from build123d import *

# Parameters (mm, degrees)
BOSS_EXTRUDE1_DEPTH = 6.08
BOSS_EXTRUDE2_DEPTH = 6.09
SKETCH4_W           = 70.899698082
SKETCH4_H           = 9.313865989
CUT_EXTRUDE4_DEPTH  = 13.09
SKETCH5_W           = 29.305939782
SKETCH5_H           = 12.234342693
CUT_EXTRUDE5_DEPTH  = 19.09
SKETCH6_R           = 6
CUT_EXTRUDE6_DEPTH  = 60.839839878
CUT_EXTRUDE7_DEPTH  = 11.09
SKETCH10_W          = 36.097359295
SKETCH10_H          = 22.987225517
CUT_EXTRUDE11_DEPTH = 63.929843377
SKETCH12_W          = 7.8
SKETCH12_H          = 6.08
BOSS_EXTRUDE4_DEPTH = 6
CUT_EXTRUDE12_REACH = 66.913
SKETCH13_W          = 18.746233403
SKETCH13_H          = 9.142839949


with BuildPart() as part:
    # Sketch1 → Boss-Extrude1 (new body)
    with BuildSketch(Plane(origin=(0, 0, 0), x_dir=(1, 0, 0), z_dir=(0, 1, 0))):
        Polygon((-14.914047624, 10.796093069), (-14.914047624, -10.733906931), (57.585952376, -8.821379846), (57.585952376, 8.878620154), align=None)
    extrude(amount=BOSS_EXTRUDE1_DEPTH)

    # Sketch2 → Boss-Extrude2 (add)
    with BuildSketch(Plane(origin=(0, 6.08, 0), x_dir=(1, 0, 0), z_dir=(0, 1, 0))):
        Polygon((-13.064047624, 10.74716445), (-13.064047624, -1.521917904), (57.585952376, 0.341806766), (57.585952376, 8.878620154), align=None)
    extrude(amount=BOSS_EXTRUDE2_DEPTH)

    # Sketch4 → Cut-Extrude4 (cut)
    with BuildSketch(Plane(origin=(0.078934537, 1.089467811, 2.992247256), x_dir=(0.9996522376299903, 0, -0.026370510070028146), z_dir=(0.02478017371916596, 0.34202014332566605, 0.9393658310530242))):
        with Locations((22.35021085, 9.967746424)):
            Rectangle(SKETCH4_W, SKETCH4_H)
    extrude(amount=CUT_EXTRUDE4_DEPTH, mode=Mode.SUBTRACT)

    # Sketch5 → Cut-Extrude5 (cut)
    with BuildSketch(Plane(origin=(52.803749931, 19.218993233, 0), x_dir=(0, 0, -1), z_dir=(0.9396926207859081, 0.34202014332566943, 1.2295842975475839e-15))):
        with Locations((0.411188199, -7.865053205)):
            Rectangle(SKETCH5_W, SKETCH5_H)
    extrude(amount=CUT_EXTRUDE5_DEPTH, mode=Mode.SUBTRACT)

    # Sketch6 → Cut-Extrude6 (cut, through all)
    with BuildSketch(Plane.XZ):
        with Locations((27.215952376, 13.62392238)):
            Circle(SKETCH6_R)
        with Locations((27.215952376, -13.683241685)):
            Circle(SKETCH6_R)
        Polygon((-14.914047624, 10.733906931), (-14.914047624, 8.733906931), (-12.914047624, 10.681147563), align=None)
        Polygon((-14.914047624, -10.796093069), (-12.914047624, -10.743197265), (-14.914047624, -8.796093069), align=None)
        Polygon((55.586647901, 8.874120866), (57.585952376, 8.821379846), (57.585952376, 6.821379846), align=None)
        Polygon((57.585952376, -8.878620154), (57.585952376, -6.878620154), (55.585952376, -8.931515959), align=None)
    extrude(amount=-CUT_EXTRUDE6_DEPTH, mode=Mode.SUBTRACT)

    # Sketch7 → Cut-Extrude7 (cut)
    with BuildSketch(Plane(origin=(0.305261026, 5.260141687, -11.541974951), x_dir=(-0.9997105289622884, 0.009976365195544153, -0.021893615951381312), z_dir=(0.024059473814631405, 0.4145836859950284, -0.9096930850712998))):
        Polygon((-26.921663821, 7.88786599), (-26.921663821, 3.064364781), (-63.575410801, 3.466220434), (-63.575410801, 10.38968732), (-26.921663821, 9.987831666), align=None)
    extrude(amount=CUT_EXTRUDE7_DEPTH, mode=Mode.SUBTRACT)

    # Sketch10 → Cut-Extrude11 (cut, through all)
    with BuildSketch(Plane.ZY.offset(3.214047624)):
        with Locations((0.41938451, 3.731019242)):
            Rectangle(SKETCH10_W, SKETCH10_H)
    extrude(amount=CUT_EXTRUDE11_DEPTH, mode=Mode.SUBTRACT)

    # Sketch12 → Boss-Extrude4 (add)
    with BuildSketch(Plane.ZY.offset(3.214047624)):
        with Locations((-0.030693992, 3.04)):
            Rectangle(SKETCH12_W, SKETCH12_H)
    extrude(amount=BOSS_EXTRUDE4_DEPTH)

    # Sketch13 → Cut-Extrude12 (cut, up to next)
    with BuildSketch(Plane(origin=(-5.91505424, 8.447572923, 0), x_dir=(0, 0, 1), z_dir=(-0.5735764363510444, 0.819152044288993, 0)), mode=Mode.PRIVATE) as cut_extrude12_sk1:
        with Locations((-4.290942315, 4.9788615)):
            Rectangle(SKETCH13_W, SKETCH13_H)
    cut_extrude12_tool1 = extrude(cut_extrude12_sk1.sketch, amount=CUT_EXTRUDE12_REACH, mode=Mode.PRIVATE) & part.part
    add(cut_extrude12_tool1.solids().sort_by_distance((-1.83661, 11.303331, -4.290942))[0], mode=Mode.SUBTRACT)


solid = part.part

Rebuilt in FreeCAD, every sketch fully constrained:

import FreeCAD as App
import Part
import Sketcher
Q = App.Units.Quantity

doc = App.newDocument("Part")
body = doc.addObject("PartDesign::Body", "Body")

sketch1 = doc.addObject("Sketcher::SketchObject", "Sketch")
body.addObject(sketch1)
sketch1.AttachmentSupport = (doc.XZ_Plane, [""])
sketch1.MapMode = "FlatFace"
sketch1.addGeometry([
    Part.LineSegment(App.Vector(-15, -11, 0), App.Vector(-15, 11, 0)),
    Part.LineSegment(App.Vector(-15, 11, 0), App.Vector(58, 9, 0)),
    Part.LineSegment(App.Vector(58, 9, 0), App.Vector(58, -9, 0)),
    Part.LineSegment(App.Vector(58, -9, 0), App.Vector(-15, -11, 0)),
], False)
sketch1.addConstraint([
    Sketcher.Constraint("Coincident", 0, 2, 1, 1),
    Sketcher.Constraint("Coincident", 1, 2, 2, 1),
    Sketcher.Constraint("Coincident", 2, 2, 3, 1),
    Sketcher.Constraint("Coincident", 3, 2, 0, 1),
    Sketcher.Constraint("Vertical", 0),
    Sketcher.Constraint("Vertical", 2),
    Sketcher.Constraint("DistanceY", 2, 2, 2, 1, Q("17.7 mm")),
    Sketcher.Constraint("DistanceY", 0, 1, 0, 2, Q("21.53 mm")),
    Sketcher.Constraint("DistanceX", 0, 2, 1, 2, Q("72.5 mm")),
    Sketcher.Constraint("Distance", 1, Q("72.525222 mm")),
    Sketcher.Constraint("DistanceY", -1, 1, 1, 2, Q("8.82138 mm")),
    Sketcher.Constraint("DistanceX", 0, 2, -1, 1, Q("14.914048 mm")),
])
pad1 = doc.addObject("PartDesign::Pad", "Pad")
body.addObject(pad1)
pad1.Profile = sketch1
pad1.Length = 6.08
pad1.Reversed = True

sketch2 = doc.addObject("Sketcher::SketchObject", "Sketch001")
body.addObject(sketch2)
sketch2.AttachmentSupport = (doc.XZ_Plane, [""])
sketch2.MapMode = "FlatFace"
sketch2.AttachmentOffset = App.Placement(App.Vector(0, 0, -6.08), App.Rotation())
sketch2.addGeometry([
    Part.LineSegment(App.Vector(-13, -11, 0), App.Vector(-13, 2, 0)),
    Part.LineSegment(App.Vector(-13, 2, 0), App.Vector(58, 0, 0)),
    Part.LineSegment(App.Vector(58, 0, 0), App.Vector(58, -9, 0)),
    Part.LineSegment(App.Vector(58, -9, 0), App.Vector(-13, -11, 0)),
], False)
sketch2.addConstraint([
    Sketcher.Constraint("Coincident", 0, 2, 1, 1),
    Sketcher.Constraint("Coincident", 1, 2, 2, 1),
    Sketcher.Constraint("Coincident", 2, 2, 3, 1),
    Sketcher.Constraint("Coincident", 3, 2, 0, 1),
    Sketcher.Constraint("Vertical", 0),
    Sketcher.Constraint("Vertical", 2),
    Sketcher.Constraint("DistanceX", 0, 2, 1, 2, Q("70.65 mm")),
    Sketcher.Constraint("DistanceY", 0, 1, 0, 2, Q("12.269082 mm")),
    Sketcher.Constraint("DistanceY", 2, 2, 2, 1, Q("8.536813 mm")),
    Sketcher.Constraint("DistanceY", 2, 2, -1, 1, Q("8.87862 mm")),
    Sketcher.Constraint("DistanceY", 2, 2, 0, 2, Q("10.400538 mm")),
    Sketcher.Constraint("DistanceX", 0, 2, -1, 1, Q("13.064048 mm")),
])
pad2 = doc.addObject("PartDesign::Pad", "Pad001")
body.addObject(pad2)
pad2.Profile = sketch2
pad2.Length = 6.09
pad2.Reversed = True

sketch3 = doc.addObject("Sketcher::SketchObject", "Sketch002")
body.addObject(sketch3)
sketch3.Placement = App.Placement(App.Vector(0.078935, 1.089468, 2.992247), App.Rotation(App.Vector(0.999652238, 0, -0.02637051), App.Vector(-0.009019246, 0.939692621, -0.341901201), App.Vector(0.024780174, 0.342020143, 0.939365831), "ZXY"))
sketch3.addGeometry([
    Part.LineSegment(App.Vector(-13, 15, 0), App.Vector(-13, 5, 0)),
    Part.LineSegment(App.Vector(-13, 5, 0), App.Vector(58, 5, 0)),
    Part.LineSegment(App.Vector(58, 5, 0), App.Vector(58, 15, 0)),
    Part.LineSegment(App.Vector(58, 15, 0), App.Vector(-13, 15, 0)),
], False)
sketch3.addConstraint([
    Sketcher.Constraint("Coincident", 0, 2, 1, 1),
    Sketcher.Constraint("Coincident", 1, 2, 2, 1),
    Sketcher.Constraint("Coincident", 2, 2, 3, 1),
    Sketcher.Constraint("Coincident", 3, 2, 0, 1),
    Sketcher.Constraint("Vertical", 0),
    Sketcher.Constraint("Horizontal", 1),
    Sketcher.Constraint("Vertical", 2),
    Sketcher.Constraint("Horizontal", 3),
    Sketcher.Constraint("DistanceX", 1, 1, 1, 2, Q("70.899698 mm")),
    Sketcher.Constraint("DistanceY", 0, 2, 0, 1, Q("9.313866 mm")),
    Sketcher.Constraint("DistanceX", 0, 2, -1, 1, Q("13.099638 mm")),
    Sketcher.Constraint("DistanceY", -1, 1, 2, 2, Q("14.624679 mm")),
])
pocket1 = doc.addObject("PartDesign::Pocket", "Pocket")
body.addObject(pocket1)
pocket1.Profile = sketch3
pocket1.Length = 13.09
pocket1.Reversed = True

sketch4 = doc.addObject("Sketcher::SketchObject", "Sketch003")
body.addObject(sketch4)
sketch4.Placement = App.Placement(App.Vector(52.80375, 19.218993, 0), App.Rotation(App.Vector(0, 0, -1), App.Vector(-0.342020143, 0.939692621, 0), App.Vector(0.939692621, 0.342020143, 0), "ZXY"))
sketch4.addGeometry([
    Part.LineSegment(App.Vector(-14, -2, 0), App.Vector(-14, -14, 0)),
    Part.LineSegment(App.Vector(-14, -14, 0), App.Vector(15, -14, 0)),
    Part.LineSegment(App.Vector(15, -14, 0), App.Vector(15, -2, 0)),
    Part.LineSegment(App.Vector(15, -2, 0), App.Vector(-14, -2, 0)),
], False)
sketch4.addConstraint([
    Sketcher.Constraint("Coincident", 0, 2, 1, 1),
    Sketcher.Constraint("Coincident", 1, 2, 2, 1),
    Sketcher.Constraint("Coincident", 2, 2, 3, 1),
    Sketcher.Constraint("Coincident", 3, 2, 0, 1),
    Sketcher.Constraint("Vertical", 0),
    Sketcher.Constraint("Horizontal", 1),
    Sketcher.Constraint("Vertical", 2),
    Sketcher.Constraint("Horizontal", 3),
    Sketcher.Constraint("DistanceX", 1, 1, 1, 2, Q("29.30594 mm")),
    Sketcher.Constraint("DistanceY", 0, 2, 0, 1, Q("12.234343 mm")),
    Sketcher.Constraint("DistanceX", 0, 2, -1, 1, Q("14.241782 mm")),
    Sketcher.Constraint("DistanceY", 2, 2, -1, 1, Q("1.747882 mm")),
])
pocket2 = doc.addObject("PartDesign::Pocket", "Pocket001")
body.addObject(pocket2)
pocket2.Profile = sketch4
pocket2.Length = 19.09
pocket2.Reversed = True

sketch5 = doc.addObject("Sketcher::SketchObject", "Sketch004")
body.addObject(sketch5)
sketch5.AttachmentSupport = (doc.XZ_Plane, [""])
sketch5.MapMode = "FlatFace"
sketch5.addGeometry([
    Part.Circle(App.Vector(27.2, 13.6, 0), App.Vector(0, 0, 1), 6),
    Part.Circle(App.Vector(27.2, -13.7, 0), App.Vector(0, 0, 1), 6),
    Part.LineSegment(App.Vector(-14.9, 10.7, 0), App.Vector(-14.9, 8.7, 0)),
    Part.LineSegment(App.Vector(-14.9, 8.7, 0), App.Vector(-12.9, 10.7, 0)),
    Part.LineSegment(App.Vector(-12.9, 10.7, 0), App.Vector(-14.9, 10.7, 0)),
    Part.LineSegment(App.Vector(-14.9, -10.8, 0), App.Vector(-12.9, -10.7, 0)),
    Part.LineSegment(App.Vector(-12.9, -10.7, 0), App.Vector(-14.9, -8.8, 0)),
    Part.LineSegment(App.Vector(-14.9, -8.8, 0), App.Vector(-14.9, -10.8, 0)),
    Part.LineSegment(App.Vector(57.6, 8.8, 0), App.Vector(55.6, 8.9, 0)),
    Part.LineSegment(App.Vector(55.6, 8.9, 0), App.Vector(57.6, 6.8, 0)),
    Part.LineSegment(App.Vector(57.6, 6.8, 0), App.Vector(57.6, 8.8, 0)),
    Part.LineSegment(App.Vector(57.6, -8.9, 0), App.Vector(57.6, -6.9, 0)),
    Part.LineSegment(App.Vector(57.6, -6.9, 0), App.Vector(55.6, -8.9, 0)),
    Part.LineSegment(App.Vector(55.6, -8.9, 0), App.Vector(57.6, -8.9, 0)),
], False)
sketch5.addConstraint([
    Sketcher.Constraint("Coincident", 2, 2, 3, 1),
    Sketcher.Constraint("Coincident", 3, 2, 4, 1),
    Sketcher.Constraint("Coincident", 4, 2, 2, 1),
    Sketcher.Constraint("Coincident", 5, 2, 6, 1),
    Sketcher.Constraint("Coincident", 6, 2, 7, 1),
    Sketcher.Constraint("Coincident", 7, 2, 5, 1),
    Sketcher.Constraint("Coincident", 8, 2, 9, 1),
    Sketcher.Constraint("Coincident", 9, 2, 10, 1),
    Sketcher.Constraint("Coincident", 10, 2, 8, 1),
    Sketcher.Constraint("Coincident", 11, 2, 12, 1),
    Sketcher.Constraint("Coincident", 12, 2, 13, 1),
    Sketcher.Constraint("Coincident", 13, 2, 11, 1),
    Sketcher.Constraint("Vertical", 2),
    Sketcher.Constraint("Vertical", 7),
    Sketcher.Constraint("Vertical", 10),
    Sketcher.Constraint("Vertical", 11),
    Sketcher.Constraint("Equal", 0, 1),
    Sketcher.Constraint("Parallel", 4, 8),
    Sketcher.Constraint("Parallel", 5, 13),
    Sketcher.Constraint("Vertical", 0, 3, 1, 3),
    Sketcher.Constraint("Vertical", 3, 2, 5, 2),
    Sketcher.Constraint("Vertical", 4, 2, 6, 2),
    Sketcher.Constraint("Vertical", 10, 2, 11, 2),
    Sketcher.Constraint("Equal", 2, 7),
    Sketcher.Constraint("Equal", 7, 10),
    Sketcher.Constraint("Equal", 10, 11),
    Sketcher.Constraint("Equal", 5, 13),
    Sketcher.Constraint("Diameter", 0, Q("12 mm")),
    Sketcher.Constraint("DistanceY", 2, 2, 2, 1, Q("2 mm")),
    Sketcher.Constraint("Distance", 8, Q("2 mm")),
    Sketcher.Constraint("DistanceX", 2, 2, 3, 2, Q("2 mm")),
    Sketcher.Constraint("DistanceX", 3, 2, 9, 2, Q("70.5 mm")),
    Sketcher.Constraint("DistanceY", 11, 2, 9, 2, Q("13.7 mm")),
    Sketcher.Constraint("DistanceX", 2, 2, 0, 3, Q("42.13 mm")),
    Sketcher.Constraint("DistanceY", 6, 2, 2, 2, Q("17.53 mm")),
    Sketcher.Constraint("Distance", 5, Q("2.000699 mm")),
    Sketcher.Constraint("DistanceY", 8, 2, 0, 3, Q("4.749802 mm")),
    Sketcher.Constraint("Distance", 3, Q("2.79137 mm")),
    Sketcher.Constraint("DistanceY", 1, 3, -1, 1, Q("13.683242 mm")),
    Sketcher.Constraint("DistanceY", -1, 1, 8, 2, Q("8.874121 mm")),
    Sketcher.Constraint("DistanceY", 1, 3, 2, 2, Q("22.417149 mm")),
    Sketcher.Constraint("DistanceX", -1, 1, 0, 3, Q("27.215952 mm")),
])
pocket3 = doc.addObject("PartDesign::Pocket", "Pocket002")
body.addObject(pocket3)
pocket3.Profile = sketch5
pocket3.Type = "ThroughAll"

sketch6 = doc.addObject("Sketcher::SketchObject", "Sketch005")
body.addObject(sketch6)
sketch6.Placement = App.Placement(App.Vector(0.305261, 5.260142, -11.541975), App.Rotation(App.Vector(-0.999710529, 0.009976365, -0.021893616), App.Vector(-0.000001306, 0.909956504, 0.414703702), App.Vector(0.024059474, 0.414583686, -0.909693085), "ZXY"))
sketch6.addGeometry([
    Part.LineSegment(App.Vector(-27, 3, 0), App.Vector(-27, 10, 0)),
    Part.LineSegment(App.Vector(-27, 10, 0), App.Vector(-64, 10, 0)),
    Part.LineSegment(App.Vector(-64, 10, 0), App.Vector(-64, 3, 0)),
    Part.LineSegment(App.Vector(-64, 3, 0), App.Vector(-27, 3, 0)),
], False)
sketch6.addConstraint([
    Sketcher.Constraint("Coincident", 0, 2, 1, 1),
    Sketcher.Constraint("Coincident", 1, 2, 2, 1),
    Sketcher.Constraint("Coincident", 2, 2, 3, 1),
    Sketcher.Constraint("Coincident", 3, 2, 0, 1),
    Sketcher.Constraint("Vertical", 0),
    Sketcher.Constraint("Vertical", 2),
    Sketcher.Constraint("Parallel", 1, 3),
    Sketcher.Constraint("Distance", 1, Q("36.65595 mm")),
    Sketcher.Constraint("DistanceY", 0, 1, 0, 2, Q("6.923467 mm")),
    Sketcher.Constraint("DistanceY", -1, 1, 0, 2, Q("9.987832 mm")),
    Sketcher.Constraint("DistanceX", 1, 2, -1, 1, Q("63.575411 mm")),
    Sketcher.Constraint("DistanceY", -1, 1, 2, 2, Q("3.46622 mm")),
])
pocket4 = doc.addObject("PartDesign::Pocket", "Pocket003")
body.addObject(pocket4)
pocket4.Profile = sketch6
pocket4.Length = 11.09
pocket4.Reversed = True

sketch7 = doc.addObject("Sketcher::SketchObject", "Sketch006")
body.addObject(sketch7)
sketch7.AttachmentSupport = (doc.YZ_Plane, [""])
sketch7.MapMode = "FlatFace"
sketch7.AttachmentOffset = App.Placement(App.Vector(0, 0, -3.214048), App.Rotation())
sketch7.addGeometry([
    Part.LineSegment(App.Vector(15, -18, 0), App.Vector(-8, -18, 0)),
    Part.LineSegment(App.Vector(-8, -18, 0), App.Vector(-8, 18, 0)),
    Part.LineSegment(App.Vector(-8, 18, 0), App.Vector(15, 18, 0)),
    Part.LineSegment(App.Vector(15, 18, 0), App.Vector(15, -18, 0)),
], False)
sketch7.addConstraint([
    Sketcher.Constraint("Coincident", 0, 2, 1, 1),
    Sketcher.Constraint("Coincident", 1, 2, 2, 1),
    Sketcher.Constraint("Coincident", 2, 2, 3, 1),
    Sketcher.Constraint("Coincident", 3, 2, 0, 1),
    Sketcher.Constraint("Horizontal", 0),
    Sketcher.Constraint("Vertical", 1),
    Sketcher.Constraint("Horizontal", 2),
    Sketcher.Constraint("Vertical", 3),
    Sketcher.Constraint("DistanceY", 1, 1, 1, 2, Q("36.097359 mm")),
    Sketcher.Constraint("DistanceX", 0, 2, 0, 1, Q("22.987226 mm")),
    Sketcher.Constraint("DistanceX", 0, 2, -1, 1, Q("7.762594 mm")),
    Sketcher.Constraint("DistanceY", 0, 2, -1, 1, Q("17.629295 mm")),
])
pocket5 = doc.addObject("PartDesign::Pocket", "Pocket004")
body.addObject(pocket5)
pocket5.Profile = sketch7
pocket5.Type = "ThroughAll"

sketch8 = doc.addObject("Sketcher::SketchObject", "Sketch007")
body.addObject(sketch8)
sketch8.AttachmentSupport = (doc.YZ_Plane, [""])
sketch8.MapMode = "FlatFace"
sketch8.AttachmentOffset = App.Placement(App.Vector(0, 0, -3.214048), App.Rotation())
sketch8.addGeometry([
    Part.LineSegment(App.Vector(6, -4, 0), App.Vector(0, -4, 0)),
    Part.LineSegment(App.Vector(0, -4, 0), App.Vector(0, 4, 0)),
    Part.LineSegment(App.Vector(0, 4, 0), App.Vector(6, 4, 0)),
    Part.LineSegment(App.Vector(6, 4, 0), App.Vector(6, -4, 0)),
], False)
sketch8.addConstraint([
    Sketcher.Constraint("Coincident", 0, 2, 1, 1),
    Sketcher.Constraint("Coincident", 1, 2, 2, 1),
    Sketcher.Constraint("Coincident", 2, 2, 3, 1),
    Sketcher.Constraint("Coincident", 3, 2, 0, 1),
    Sketcher.Constraint("Horizontal", 0),
    Sketcher.Constraint("Vertical", 1),
    Sketcher.Constraint("Horizontal", 2),
    Sketcher.Constraint("Vertical", 3),
    Sketcher.Constraint("PointOnObject", 0, 2, -2),
    Sketcher.Constraint("DistanceY", 1, 1, 1, 2, Q("7.8 mm")),
    Sketcher.Constraint("DistanceX", 0, 2, 0, 1, Q("6.08 mm")),
    Sketcher.Constraint("DistanceY", 0, 2, -1, 1, Q("3.930694 mm")),
])
pad3 = doc.addObject("PartDesign::Pad", "Pad002")
body.addObject(pad3)
pad3.Profile = sketch8
pad3.Length = 6
pad3.Reversed = True

sketch9 = doc.addObject("Sketcher::SketchObject", "Sketch008")
body.addObject(sketch9)
sketch9.Placement = App.Placement(App.Vector(-5.915054, 8.447573, 0), App.Rotation(App.Vector(0, 0, 1), App.Vector(0.819152044, 0.573576436, 0), App.Vector(-0.573576436, 0.819152044, 0), "ZXY"))
sketch9.addGeometry([
    Part.LineSegment(App.Vector(-14, 10, 0), App.Vector(-14, 0, 0)),
    Part.LineSegment(App.Vector(-14, 0, 0), App.Vector(5, 0, 0)),
    Part.LineSegment(App.Vector(5, 0, 0), App.Vector(5, 10, 0)),
    Part.LineSegment(App.Vector(5, 10, 0), App.Vector(-14, 10, 0)),
], False)
sketch9.addConstraint([
    Sketcher.Constraint("Coincident", 0, 2, 1, 1),
    Sketcher.Constraint("Coincident", 1, 2, 2, 1),
    Sketcher.Constraint("Coincident", 2, 2, 3, 1),
    Sketcher.Constraint("Coincident", 3, 2, 0, 1),
    Sketcher.Constraint("Vertical", 0),
    Sketcher.Constraint("Horizontal", 1),
    Sketcher.Constraint("Vertical", 2),
    Sketcher.Constraint("Horizontal", 3),
    Sketcher.Constraint("DistanceY", 0, 2, 0, 1, Q("9.14284 mm")),
    Sketcher.Constraint("DistanceX", 1, 1, 1, 2, Q("18.746233 mm")),
    Sketcher.Constraint("DistanceX", 0, 2, -1, 1, Q("13.664059 mm")),
    Sketcher.Constraint("DistanceY", -1, 1, 0, 2, Q("0.407442 mm")),
])
pocket6 = doc.addObject("PartDesign::Pocket", "Pocket005")
body.addObject(pocket6)
pocket6.Profile = sketch9
pocket6.Length = 1.5
pocket6.Reversed = True

doc.recompute()
